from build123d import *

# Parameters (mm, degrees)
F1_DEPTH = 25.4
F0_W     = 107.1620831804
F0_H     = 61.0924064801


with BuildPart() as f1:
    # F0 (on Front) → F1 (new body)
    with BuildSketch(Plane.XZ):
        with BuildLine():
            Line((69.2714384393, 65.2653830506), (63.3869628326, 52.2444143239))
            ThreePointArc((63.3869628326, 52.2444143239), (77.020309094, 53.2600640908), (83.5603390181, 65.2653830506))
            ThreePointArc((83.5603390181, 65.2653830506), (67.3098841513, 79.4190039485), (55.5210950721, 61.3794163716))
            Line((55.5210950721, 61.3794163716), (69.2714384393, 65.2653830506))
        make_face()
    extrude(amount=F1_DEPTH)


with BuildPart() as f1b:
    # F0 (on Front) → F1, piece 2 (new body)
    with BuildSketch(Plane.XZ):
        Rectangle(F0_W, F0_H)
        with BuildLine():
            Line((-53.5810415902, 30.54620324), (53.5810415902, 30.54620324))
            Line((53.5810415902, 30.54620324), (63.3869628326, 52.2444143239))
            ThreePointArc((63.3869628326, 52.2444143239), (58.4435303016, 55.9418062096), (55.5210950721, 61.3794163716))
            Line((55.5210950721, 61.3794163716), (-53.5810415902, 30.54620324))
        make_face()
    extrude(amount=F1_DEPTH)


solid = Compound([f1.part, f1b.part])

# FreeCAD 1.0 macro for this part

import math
import FreeCAD as App
import Part
import Sketcher

V = App.Vector
Q = App.Units.Quantity

doc = App.newDocument("Part")
body = doc.addObject("PartDesign::Body", "Body")

sketch1 = body.newObject("Sketcher::SketchObject", "Sketch")
sketch1.AttachmentSupport = (doc.getObject("XZ_Plane"), [""])
sketch1.MapMode = "FlatFace"
sketch1.addGeometry([
    Part.LineSegment(V(69, 65, 0), V(63, 52, 0)),
    Part.ArcOfCircle(Part.Circle(V(69, 65, 0), V(0, 0, 1), 14), math.radians(-114), math.radians(0)),
    Part.ArcOfCircle(Part.Circle(V(69, 65, 0), V(0, 0, 1), 14), math.radians(0), math.radians(196)),
    Part.LineSegment(V(56, 61, 0), V(69, 65, 0)),
], False)
sketch1.addConstraint([
    Sketcher.Constraint("Coincident", 0, 2, 1, 1),
    Sketcher.Constraint("Tangent", 1, 2, 2, 1),
    Sketcher.Constraint("Coincident", 2, 2, 3, 1),
    Sketcher.Constraint("Coincident", 3, 2, 0, 1),
    Sketcher.Constraint("Coincident", 3, 2, 1, 3),
    Sketcher.Constraint("Equal", 1, 2),
    Sketcher.Constraint("Horizontal", 2, 3, 1, 2),
    Sketcher.Constraint("Radius", 1, Q("14.288901 mm")),
    Sketcher.Constraint("DistanceX", -1, 1, 1, 3, Q("69.271438 mm")),
    Sketcher.Constraint("DistanceY", 0, 2, 1, 3, Q("13.020969 mm")),
    Sketcher.Constraint("DistanceY", -1, 1, 1, 3, Q("65.265383 mm")),
    Sketcher.Constraint("DistanceX", -1, 1, 2, 2, Q("55.521095 mm")),
])
pad1 = body.newObject("PartDesign::Pad", "Pad")
pad1.Profile = sketch1
pad1.Length = Q("1 in")
body2 = doc.addObject("PartDesign::Body", "Body001")

sketch2 = body2.newObject("Sketcher::SketchObject", "Sketch001")
sketch2.AttachmentSupport = (doc.getObject("XZ_Plane001"), [""])
sketch2.MapMode = "FlatFace"
sketch2.addGeometry([
    Part.LineSegment(V(-54, 31, 0), V(-54, -31, 0)),
    Part.LineSegment(V(-54, -31, 0), V(54, -31, 0)),
    Part.LineSegment(V(54, -31, 0), V(54, 31, 0)),
    Part.LineSegment(V(54, 31, 0), V(63, 52, 0)),
    Part.ArcOfCircle(Part.Circle(V(69, 65, 0), V(0, 0, 1), 14), math.radians(-164), math.radians(-114)),
    Part.LineSegment(V(56, 61, 0), V(-54, 31, 0)),
], False)
sketch2.addConstraint([
    Sketcher.Constraint("Coincident", 0, 2, 1, 1),
    Sketcher.Constraint("Coincident", 1, 2, 2, 1),
    Sketcher.Constraint("Coincident", 2, 2, 3, 1),
    Sketcher.Constraint("Coincident", 3, 2, 4, 2),
    Sketcher.Constraint("Coincident", 4, 1, 5, 1),
    Sketcher.Constraint("Coincident", 5, 2, 0, 1),
    Sketcher.Constraint("Vertical", 0),
    Sketcher.Constraint("Horizontal", 1),
    Sketcher.Constraint("Vertical", 2),
    Sketcher.Constraint("Symmetric", 0, 2, 2, 2, -1, 1),
    Sketcher.Constraint("Horizontal", 2, 2, 5, 2),
    Sketcher.Constraint("Radius", 4, Q("14.288901 mm")),
    Sketcher.Constraint("Distance", 3, Q("23.811099 mm")),
    Sketcher.Constraint("Distance", 5, Q("113.37532 mm")),
    Sketcher.Constraint("DistanceX", 1, 1, 1, 2, Q("107.162083 mm")),
    Sketcher.Constraint("DistanceY", 0, 2, 0, 1, Q("61.092406 mm")),
    Sketcher.Constraint("DistanceY", 3, 2, 4, 3, Q("13.020969 mm")),
    Sketcher.Constraint("DistanceY", 1, 2, 4, 1, Q("91.92562 mm")),
])
pad2 = body2.newObject("PartDesign::Pad", "Pad001")
pad2.Profile = sketch2
pad2.Length = Q("1 in")

doc.recompute()
